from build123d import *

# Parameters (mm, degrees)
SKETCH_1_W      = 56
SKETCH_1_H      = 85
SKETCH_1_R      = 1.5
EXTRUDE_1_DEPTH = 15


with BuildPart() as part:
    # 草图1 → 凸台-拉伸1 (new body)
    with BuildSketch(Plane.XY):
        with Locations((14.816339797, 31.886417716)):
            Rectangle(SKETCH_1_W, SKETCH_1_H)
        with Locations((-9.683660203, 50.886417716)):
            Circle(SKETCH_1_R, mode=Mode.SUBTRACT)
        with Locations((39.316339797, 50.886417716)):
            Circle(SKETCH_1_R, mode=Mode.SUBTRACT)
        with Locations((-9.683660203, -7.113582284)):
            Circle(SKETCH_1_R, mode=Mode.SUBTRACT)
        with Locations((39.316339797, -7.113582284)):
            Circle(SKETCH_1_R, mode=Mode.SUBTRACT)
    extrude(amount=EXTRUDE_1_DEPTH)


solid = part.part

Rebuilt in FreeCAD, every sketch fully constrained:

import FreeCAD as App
import Part
import Sketcher
from FreeCAD import Vector
Q = App.Units.Quantity


def add_polygon(sketch, points):
    """Adds a closed chain of lines whose ends are joined by coincident constraints."""
    first, n = sketch.GeometryCount, len(points)
    for a, b in zip(points, points[1:] + points[:1]):
        sketch.addGeometry(Part.LineSegment(App.Vector(*a, 0), App.Vector(*b, 0)), False)
    for i in range(n):
        sketch.addConstraint(Sketcher.Constraint("Coincident", first + i, 2, first + (i + 1) % n, 1))

doc = App.newDocument("Part")
body = doc.addObject("PartDesign::Body", "Body")

sketch1 = body.newObject("Sketcher::SketchObject", "Sketch")
sketch1.AttachmentSupport = (doc.getObject("XY_Plane"), [""])
sketch1.MapMode = "FlatFace"
add_polygon(sketch1, [(-13.2, 74.4), (-13.2, -10.6), (42.8, -10.6), (42.8, 74.4)])
sketch1.addGeometry(Part.Circle(Vector(-9.7, -7.1, 0), Vector(0, 0, 1), 1.5), False)
sketch1.addGeometry(Part.Circle(Vector(39.3, -7.1, 0), Vector(0, 0, 1), 1.5), False)
sketch1.addGeometry(Part.Circle(Vector(-9.7, 50.9, 0), Vector(0, 0, 1), 1.5), False)
sketch1.addGeometry(Part.Circle(Vector(39.3, 50.9, 0), Vector(0, 0, 1), 1.5), False)
sketch1.addConstraint([
    Sketcher.Constraint("Vertical", 0),
    Sketcher.Constraint("Horizontal", 1),
    Sketcher.Constraint("Vertical", 2),
    Sketcher.Constraint("Horizontal", 3),
    Sketcher.Constraint("Equal", 4, 5),
    Sketcher.Constraint("Equal", 5, 6),
    Sketcher.Constraint("Equal", 6, 7),
    Sketcher.Constraint("Horizontal", 4, 3, 5, 3),
    Sketcher.Constraint("Horizontal", 6, 3, 7, 3),
    Sketcher.Constraint("Vertical", 4, 3, 6, 3),
    Sketcher.Constraint("Vertical", 5, 3, 7, 3),
    Sketcher.Constraint("Diameter", 4, Q("3 mm")),
    Sketcher.Constraint("DistanceX", 1, 1, 1, 2, Q("56 mm")),
    Sketcher.Constraint("DistanceY", 0, 2, 0, 1, Q("85 mm")),
    Sketcher.Constraint("DistanceX", 4, 3, 5, 3, Q("49 mm")),
    Sketcher.Constraint("DistanceY", 4, 3, 6, 3, Q("58 mm")),
    Sketcher.Constraint("DistanceX", 0, 2, 4, 3, Q("3.5 mm")),
    Sketcher.Constraint("DistanceY", 0, 2, 4, 3, Q("3.5 mm")),
    Sketcher.Constraint("DistanceX", 4, 3, -1, 1, Q("9.68366 mm")),
    Sketcher.Constraint("DistanceY", 4, 3, -1, 1, Q("7.113582 mm")),
])
pad1 = body.newObject("PartDesign::Pad", "Pad")
pad1.Profile = sketch1
pad1.Length = 15

doc.recompute()
